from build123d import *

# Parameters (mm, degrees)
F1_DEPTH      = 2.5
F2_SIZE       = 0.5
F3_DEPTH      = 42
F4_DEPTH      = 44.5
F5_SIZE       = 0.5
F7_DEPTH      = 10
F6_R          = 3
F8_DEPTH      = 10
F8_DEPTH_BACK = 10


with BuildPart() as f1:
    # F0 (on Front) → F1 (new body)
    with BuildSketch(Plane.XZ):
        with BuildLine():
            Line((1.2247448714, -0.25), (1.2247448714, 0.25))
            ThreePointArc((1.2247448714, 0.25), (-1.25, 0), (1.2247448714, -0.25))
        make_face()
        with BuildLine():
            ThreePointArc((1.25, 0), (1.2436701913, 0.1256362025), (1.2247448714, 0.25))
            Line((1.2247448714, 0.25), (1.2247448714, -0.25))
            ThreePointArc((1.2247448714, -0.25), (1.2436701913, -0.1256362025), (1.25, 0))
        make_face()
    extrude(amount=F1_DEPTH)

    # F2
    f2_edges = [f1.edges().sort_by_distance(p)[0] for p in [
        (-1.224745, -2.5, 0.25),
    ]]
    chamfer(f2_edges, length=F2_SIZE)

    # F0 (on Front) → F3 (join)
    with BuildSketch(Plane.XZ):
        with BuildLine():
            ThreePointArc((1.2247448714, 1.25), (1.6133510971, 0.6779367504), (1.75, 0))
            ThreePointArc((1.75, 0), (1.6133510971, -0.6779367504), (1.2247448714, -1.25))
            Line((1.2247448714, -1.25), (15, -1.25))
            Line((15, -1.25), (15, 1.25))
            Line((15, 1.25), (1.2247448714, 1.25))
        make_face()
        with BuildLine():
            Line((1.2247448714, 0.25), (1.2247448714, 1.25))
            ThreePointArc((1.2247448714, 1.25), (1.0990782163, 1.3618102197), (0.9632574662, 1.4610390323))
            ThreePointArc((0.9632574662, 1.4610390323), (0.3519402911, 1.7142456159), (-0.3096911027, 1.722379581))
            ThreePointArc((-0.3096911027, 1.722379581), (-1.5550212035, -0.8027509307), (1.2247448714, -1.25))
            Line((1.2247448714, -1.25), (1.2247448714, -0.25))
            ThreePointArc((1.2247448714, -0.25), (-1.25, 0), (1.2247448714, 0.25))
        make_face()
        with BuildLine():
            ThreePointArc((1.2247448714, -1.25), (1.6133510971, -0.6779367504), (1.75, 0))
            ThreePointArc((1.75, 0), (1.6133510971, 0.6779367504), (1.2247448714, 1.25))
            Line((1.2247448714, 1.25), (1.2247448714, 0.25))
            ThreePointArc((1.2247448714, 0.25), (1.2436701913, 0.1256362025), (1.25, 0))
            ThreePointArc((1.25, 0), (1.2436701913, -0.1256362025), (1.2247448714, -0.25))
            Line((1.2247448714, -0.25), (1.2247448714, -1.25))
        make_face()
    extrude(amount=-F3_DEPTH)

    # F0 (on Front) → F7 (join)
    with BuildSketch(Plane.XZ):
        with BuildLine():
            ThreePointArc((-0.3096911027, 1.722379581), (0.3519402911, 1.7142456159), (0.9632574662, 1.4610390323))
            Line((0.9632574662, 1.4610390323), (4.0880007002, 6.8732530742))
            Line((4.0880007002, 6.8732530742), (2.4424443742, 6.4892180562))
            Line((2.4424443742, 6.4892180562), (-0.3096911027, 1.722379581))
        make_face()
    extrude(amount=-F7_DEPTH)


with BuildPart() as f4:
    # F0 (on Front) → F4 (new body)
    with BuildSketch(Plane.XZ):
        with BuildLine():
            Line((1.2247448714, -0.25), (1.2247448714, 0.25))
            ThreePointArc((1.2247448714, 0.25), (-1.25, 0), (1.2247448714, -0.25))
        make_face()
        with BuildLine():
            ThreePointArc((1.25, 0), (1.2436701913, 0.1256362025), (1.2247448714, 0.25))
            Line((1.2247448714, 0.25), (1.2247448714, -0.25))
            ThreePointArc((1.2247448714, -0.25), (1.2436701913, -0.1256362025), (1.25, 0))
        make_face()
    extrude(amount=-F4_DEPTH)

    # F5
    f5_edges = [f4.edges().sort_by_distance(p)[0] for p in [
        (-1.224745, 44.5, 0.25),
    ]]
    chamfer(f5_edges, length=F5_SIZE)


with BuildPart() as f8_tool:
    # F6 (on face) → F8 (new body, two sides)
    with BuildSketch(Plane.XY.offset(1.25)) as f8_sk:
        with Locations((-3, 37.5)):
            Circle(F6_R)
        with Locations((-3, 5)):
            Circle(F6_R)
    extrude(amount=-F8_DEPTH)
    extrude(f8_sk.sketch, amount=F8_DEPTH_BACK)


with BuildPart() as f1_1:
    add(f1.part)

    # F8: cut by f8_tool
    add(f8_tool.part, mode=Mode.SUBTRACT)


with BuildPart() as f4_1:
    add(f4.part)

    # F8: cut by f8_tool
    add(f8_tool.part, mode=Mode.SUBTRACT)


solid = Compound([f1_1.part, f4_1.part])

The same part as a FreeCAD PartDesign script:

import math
import FreeCAD as App
import Part
import Sketcher
from FreeCAD import Vector
Q = App.Units.Quantity


def edges_at(feature, points):
    """Names of the edges that pass closest to the given points."""
    edges = feature.Shape.Edges
    near = lambda p: min(range(len(edges)), key=lambda i: edges[i].distToShape(Part.Vertex(*p))[0])
    return sorted({f"Edge{near(p) + 1}" for p in points})

doc = App.newDocument("Part")
body = doc.addObject("PartDesign::Body", "Body")
body.AllowCompound = True

sketch1 = doc.addObject("Sketcher::SketchObject", "Sketch")
body.addObject(sketch1)
sketch1.AttachmentSupport = (doc.XZ_Plane, [""])
sketch1.MapMode = "FlatFace"
sketch1.addGeometry([
    Part.ArcOfCircle(Part.Circle(Vector(0, 0, 0), Vector(0, 0, 1), 1.25), math.radians(12), math.radians(348)),
    Part.ArcOfCircle(Part.Circle(Vector(0, 0, 0), Vector(0, 0, 1), 1.25), math.radians(-11.54), math.radians(0)),
    Part.ArcOfCircle(Part.Circle(Vector(0, 0, 0), Vector(0, 0, 1), 1.25), math.radians(0), math.radians(11.54)),
], False)
sketch1.addConstraint([
    Sketcher.Constraint("Tangent", 0, 2, 1, 1),
    Sketcher.Constraint("Tangent", 1, 2, 2, 1),
    Sketcher.Constraint("Tangent", 2, 2, 0, 1),
    Sketcher.Constraint("Coincident", 0, 3, -1, 1),
    Sketcher.Constraint("PointOnObject", 1, 2, -1),
    Sketcher.Constraint("Vertical", 0, 2, 2, 2),
    Sketcher.Constraint("Radius", 0, Q("1.25 mm")),
    Sketcher.Constraint("DistanceY", 0, 2, 2, 2, Q("0.5 mm")),
])
pad1 = doc.addObject("PartDesign::Pad", "Pad")
body.addObject(pad1)
pad1.Profile = sketch1
pad1.Length = 2.5
doc.recompute()

chamfer = doc.addObject("PartDesign::Chamfer", "Chamfer")
body.addObject(chamfer)
chamfer.Base = (pad1, edges_at(pad1, [(-1.25, -2.5, 0)]))
chamfer.Size = 0.5

sketch2 = doc.addObject("Sketcher::SketchObject", "Sketch001")
body.addObject(sketch2)
sketch2.AttachmentSupport = (doc.XZ_Plane, [""])
sketch2.MapMode = "FlatFace"
sketch2.addGeometry([
    Part.LineSegment(Vector(1.22, -1.25, 0), Vector(15, -1.25, 0)),
    Part.LineSegment(Vector(15, -1.25, 0), Vector(15, 1.25, 0)),
    Part.LineSegment(Vector(15, 1.25, 0), Vector(1.22, 1.25, 0)),
    Part.ArcOfCircle(Part.Circle(Vector(0, 0, 0), Vector(0, 0, 1), 1.75), math.radians(45.58), math.radians(56.6)),
    Part.ArcOfCircle(Part.Circle(Vector(0, 0, 0), Vector(0, 0, 1), 1.75), math.radians(57), math.radians(100)),
    Part.ArcOfCircle(Part.Circle(Vector(0, 0, 0), Vector(0, 0, 1), 1.75), math.radians(100), math.radians(314)),
    Part.ArcOfCircle(Part.Circle(Vector(0, 0, 0), Vector(0, 0, 1), 1.25), math.radians(-11.54), math.radians(0)),
    Part.ArcOfCircle(Part.Circle(Vector(0, 0, 0), Vector(0, 0, 1), 1.25), math.radians(12), math.radians(348)),
    Part.ArcOfCircle(Part.Circle(Vector(0, 0, 0), Vector(0, 0, 1), 1.25), math.radians(0), math.radians(11.54)),
], False)
sketch2.addConstraint([
    Sketcher.Constraint("Coincident", 0, 2, 1, 1),
    Sketcher.Constraint("Coincident", 1, 2, 2, 1),
    Sketcher.Constraint("Coincident", 2, 2, 3, 1),
    Sketcher.Constraint("Tangent", 3, 2, 4, 1),
    Sketcher.Constraint("Tangent", 4, 2, 5, 1),
    Sketcher.Constraint("Coincident", 5, 2, 0, 1),
    Sketcher.Constraint("Tangent", 6, 1, 7, 2),
    Sketcher.Constraint("Tangent", 7, 1, 8, 2),
    Sketcher.Constraint("Tangent", 8, 1, 6, 2),
    Sketcher.Constraint("Horizontal", 0),
    Sketcher.Constraint("Vertical", 1),
    Sketcher.Constraint("Horizontal", 2),
    Sketcher.Constraint("Coincident", 3, 3, -1, 1),
    Sketcher.Constraint("Coincident", 5, 3, -1, 1),
    Sketcher.Constraint("Coincident", 6, 3, -1, 1),
    Sketcher.Constraint("PointOnObject", 8, 1, -1),
    Sketcher.Constraint("Vertical", 2, 2, 5, 2),
    Sketcher.Constraint("Vertical", 5, 2, 6, 1),
    Sketcher.Constraint("Vertical", 6, 1, 7, 1),
    Sketcher.Constraint("Radius", 3, Q("1.75 mm")),
    Sketcher.Constraint("Radius", 6, Q("1.25 mm")),
    Sketcher.Constraint("DistanceY", 1, 1, 1, 2, Q("2.5 mm")),
    Sketcher.Constraint("DistanceX", -1, 1, 0, 2, Q("15 mm")),
    Sketcher.Constraint("DistanceY", -1, 1, 3, 2, Q("1.461039 mm")),
    Sketcher.Constraint("DistanceX", 4, 2, -1, 1, Q("0.309691 mm")),
])
pad2 = doc.addObject("PartDesign::Pad", "Pad001")
body.addObject(pad2)
pad2.Profile = sketch2
pad2.Length = 42
pad2.Reversed = True

sketch3 = doc.addObject("Sketcher::SketchObject", "Sketch002")
body.addObject(sketch3)
sketch3.AttachmentSupport = (doc.XZ_Plane, [""])
sketch3.MapMode = "FlatFace"
sketch3.addGeometry([
    Part.ArcOfCircle(Part.Circle(Vector(0, 0, 0), Vector(0, 0, 1), 1.8), math.radians(57), math.radians(100)),
    Part.LineSegment(Vector(1, 1.5, 0), Vector(4.1, 6.9, 0)),
    Part.LineSegment(Vector(4.1, 6.9, 0), Vector(2.4, 6.5, 0)),
    Part.LineSegment(Vector(2.4, 6.5, 0), Vector(-0.3, 1.7, 0)),
], False)
sketch3.addConstraint([
    Sketcher.Constraint("Coincident", 0, 1, 1, 1),
    Sketcher.Constraint("Coincident", 1, 2, 2, 1),
    Sketcher.Constraint("Coincident", 2, 2, 3, 1),
    Sketcher.Constraint("Coincident", 3, 2, 0, 2),
    Sketcher.Constraint("Coincident", 0, 3, -1, 1),
    Sketcher.Constraint("Parallel", 1, 3),
    Sketcher.Constraint("Angle", 1, Q("60 deg")),
    Sketcher.Constraint("Radius", 0, Q("1.75 mm")),
    Sketcher.Constraint("DistanceX", -1, 1, 1, 2, Q("4.088001 mm")),
    Sketcher.Constraint("Distance", 3, Q("5.504271 mm")),
    Sketcher.Constraint("DistanceY", -1, 1, 0, 1, Q("1.461039 mm")),
    Sketcher.Constraint("DistanceY", -1, 1, 2, 2, Q("6.489218 mm")),
])
pad3 = doc.addObject("PartDesign::Pad", "Pad002")
body.addObject(pad3)
pad3.Profile = sketch3
pad3.Length = 10
pad3.Reversed = True
body2 = doc.addObject("PartDesign::Body", "Body001")

sketch4 = doc.addObject("Sketcher::SketchObject", "Sketch003")
body2.addObject(sketch4)
sketch4.AttachmentSupport = (doc.getObject("XZ_Plane001"), [""])
sketch4.MapMode = "FlatFace"
sketch4.addGeometry([
    Part.ArcOfCircle(Part.Circle(Vector(0, 0, 0), Vector(0, 0, 1), 1.25), math.radians(12), math.radians(348)),
    Part.ArcOfCircle(Part.Circle(Vector(0, 0, 0), Vector(0, 0, 1), 1.25), math.radians(-11.54), math.radians(0)),
    Part.ArcOfCircle(Part.Circle(Vector(0, 0, 0), Vector(0, 0, 1), 1.25), math.radians(0), math.radians(11.54)),
], False)
sketch4.addConstraint([
    Sketcher.Constraint("Tangent", 0, 2, 1, 1),
    Sketcher.Constraint("Tangent", 1, 2, 2, 1),
    Sketcher.Constraint("Tangent", 2, 2, 0, 1),
    Sketcher.Constraint("Coincident", 0, 3, -1, 1),
    Sketcher.Constraint("PointOnObject", 1, 2, -1),
    Sketcher.Constraint("Vertical", 0, 2, 2, 2),
    Sketcher.Constraint("Radius", 0, Q("1.25 mm")),
    Sketcher.Constraint("DistanceY", 0, 2, 2, 2, Q("0.5 mm")),
])
pad4 = doc.addObject("PartDesign::Pad", "Pad003")
body2.addObject(pad4)
pad4.Profile = sketch4
pad4.Length = 44.5
pad4.Reversed = True
doc.recompute()

chamfer2 = doc.addObject("PartDesign::Chamfer", "Chamfer001")
body2.addObject(chamfer2)
chamfer2.Base = (pad4, edges_at(pad4, [(-1.25, 44.5, 0)]))
chamfer2.Size = 0.5
body3 = doc.addObject("PartDesign::Body", "Body002")
body3.AllowCompound = True

sketch5 = doc.addObject("Sketcher::SketchObject", "Sketch004")
body3.addObject(sketch5)
sketch5.AttachmentSupport = (doc.getObject("XY_Plane002"), [""])
sketch5.MapMode = "FlatFace"
sketch5.AttachmentOffset = App.Placement(Vector(0, 0, 1.25), App.Rotation())
sketch5.addGeometry([
    Part.Circle(Vector(-3, 37.5, 0), Vector(0, 0, 1), 3),
    Part.Circle(Vector(-3, 5, 0), Vector(0, 0, 1), 3),
], False)
sketch5.addConstraint([
    Sketcher.Constraint("Equal", 0, 1),
    Sketcher.Constraint("Vertical", 0, 3, 1, 3),
    Sketcher.Constraint("Diameter", 0, Q("6 mm")),
    Sketcher.Constraint("DistanceX", 0, 3, -1, 1, Q("3 mm")),
    Sketcher.Constraint("DistanceY", -1, 1, 1, 3, Q("5 mm")),
    Sketcher.Constraint("DistanceY", -1, 1, 0, 3, Q("37.5 mm")),
])
pad5 = doc.addObject("PartDesign::Pad", "Pad004")
body3.addObject(pad5)
pad5.Profile = sketch5
pad5.Type = "TwoLengths"
pad5.Length = 10
pad5.Length2 = 10
pad5.Reversed = True
body.AllowCompound = True
doc.recompute()

body4 = doc.addObject("PartDesign::Body", "Body003")
body4.BaseFeature = body3
boolean = doc.addObject("PartDesign::Boolean", "Boolean")
body.addObject(boolean)
boolean.Type = "Cut"
boolean.addObjects([body4])
doc.recompute()

boolean2 = doc.addObject("PartDesign::Boolean", "Boolean001")
body2.addObject(boolean2)
boolean2.Type = "Cut"
boolean2.addObjects([body3])

doc.recompute()
